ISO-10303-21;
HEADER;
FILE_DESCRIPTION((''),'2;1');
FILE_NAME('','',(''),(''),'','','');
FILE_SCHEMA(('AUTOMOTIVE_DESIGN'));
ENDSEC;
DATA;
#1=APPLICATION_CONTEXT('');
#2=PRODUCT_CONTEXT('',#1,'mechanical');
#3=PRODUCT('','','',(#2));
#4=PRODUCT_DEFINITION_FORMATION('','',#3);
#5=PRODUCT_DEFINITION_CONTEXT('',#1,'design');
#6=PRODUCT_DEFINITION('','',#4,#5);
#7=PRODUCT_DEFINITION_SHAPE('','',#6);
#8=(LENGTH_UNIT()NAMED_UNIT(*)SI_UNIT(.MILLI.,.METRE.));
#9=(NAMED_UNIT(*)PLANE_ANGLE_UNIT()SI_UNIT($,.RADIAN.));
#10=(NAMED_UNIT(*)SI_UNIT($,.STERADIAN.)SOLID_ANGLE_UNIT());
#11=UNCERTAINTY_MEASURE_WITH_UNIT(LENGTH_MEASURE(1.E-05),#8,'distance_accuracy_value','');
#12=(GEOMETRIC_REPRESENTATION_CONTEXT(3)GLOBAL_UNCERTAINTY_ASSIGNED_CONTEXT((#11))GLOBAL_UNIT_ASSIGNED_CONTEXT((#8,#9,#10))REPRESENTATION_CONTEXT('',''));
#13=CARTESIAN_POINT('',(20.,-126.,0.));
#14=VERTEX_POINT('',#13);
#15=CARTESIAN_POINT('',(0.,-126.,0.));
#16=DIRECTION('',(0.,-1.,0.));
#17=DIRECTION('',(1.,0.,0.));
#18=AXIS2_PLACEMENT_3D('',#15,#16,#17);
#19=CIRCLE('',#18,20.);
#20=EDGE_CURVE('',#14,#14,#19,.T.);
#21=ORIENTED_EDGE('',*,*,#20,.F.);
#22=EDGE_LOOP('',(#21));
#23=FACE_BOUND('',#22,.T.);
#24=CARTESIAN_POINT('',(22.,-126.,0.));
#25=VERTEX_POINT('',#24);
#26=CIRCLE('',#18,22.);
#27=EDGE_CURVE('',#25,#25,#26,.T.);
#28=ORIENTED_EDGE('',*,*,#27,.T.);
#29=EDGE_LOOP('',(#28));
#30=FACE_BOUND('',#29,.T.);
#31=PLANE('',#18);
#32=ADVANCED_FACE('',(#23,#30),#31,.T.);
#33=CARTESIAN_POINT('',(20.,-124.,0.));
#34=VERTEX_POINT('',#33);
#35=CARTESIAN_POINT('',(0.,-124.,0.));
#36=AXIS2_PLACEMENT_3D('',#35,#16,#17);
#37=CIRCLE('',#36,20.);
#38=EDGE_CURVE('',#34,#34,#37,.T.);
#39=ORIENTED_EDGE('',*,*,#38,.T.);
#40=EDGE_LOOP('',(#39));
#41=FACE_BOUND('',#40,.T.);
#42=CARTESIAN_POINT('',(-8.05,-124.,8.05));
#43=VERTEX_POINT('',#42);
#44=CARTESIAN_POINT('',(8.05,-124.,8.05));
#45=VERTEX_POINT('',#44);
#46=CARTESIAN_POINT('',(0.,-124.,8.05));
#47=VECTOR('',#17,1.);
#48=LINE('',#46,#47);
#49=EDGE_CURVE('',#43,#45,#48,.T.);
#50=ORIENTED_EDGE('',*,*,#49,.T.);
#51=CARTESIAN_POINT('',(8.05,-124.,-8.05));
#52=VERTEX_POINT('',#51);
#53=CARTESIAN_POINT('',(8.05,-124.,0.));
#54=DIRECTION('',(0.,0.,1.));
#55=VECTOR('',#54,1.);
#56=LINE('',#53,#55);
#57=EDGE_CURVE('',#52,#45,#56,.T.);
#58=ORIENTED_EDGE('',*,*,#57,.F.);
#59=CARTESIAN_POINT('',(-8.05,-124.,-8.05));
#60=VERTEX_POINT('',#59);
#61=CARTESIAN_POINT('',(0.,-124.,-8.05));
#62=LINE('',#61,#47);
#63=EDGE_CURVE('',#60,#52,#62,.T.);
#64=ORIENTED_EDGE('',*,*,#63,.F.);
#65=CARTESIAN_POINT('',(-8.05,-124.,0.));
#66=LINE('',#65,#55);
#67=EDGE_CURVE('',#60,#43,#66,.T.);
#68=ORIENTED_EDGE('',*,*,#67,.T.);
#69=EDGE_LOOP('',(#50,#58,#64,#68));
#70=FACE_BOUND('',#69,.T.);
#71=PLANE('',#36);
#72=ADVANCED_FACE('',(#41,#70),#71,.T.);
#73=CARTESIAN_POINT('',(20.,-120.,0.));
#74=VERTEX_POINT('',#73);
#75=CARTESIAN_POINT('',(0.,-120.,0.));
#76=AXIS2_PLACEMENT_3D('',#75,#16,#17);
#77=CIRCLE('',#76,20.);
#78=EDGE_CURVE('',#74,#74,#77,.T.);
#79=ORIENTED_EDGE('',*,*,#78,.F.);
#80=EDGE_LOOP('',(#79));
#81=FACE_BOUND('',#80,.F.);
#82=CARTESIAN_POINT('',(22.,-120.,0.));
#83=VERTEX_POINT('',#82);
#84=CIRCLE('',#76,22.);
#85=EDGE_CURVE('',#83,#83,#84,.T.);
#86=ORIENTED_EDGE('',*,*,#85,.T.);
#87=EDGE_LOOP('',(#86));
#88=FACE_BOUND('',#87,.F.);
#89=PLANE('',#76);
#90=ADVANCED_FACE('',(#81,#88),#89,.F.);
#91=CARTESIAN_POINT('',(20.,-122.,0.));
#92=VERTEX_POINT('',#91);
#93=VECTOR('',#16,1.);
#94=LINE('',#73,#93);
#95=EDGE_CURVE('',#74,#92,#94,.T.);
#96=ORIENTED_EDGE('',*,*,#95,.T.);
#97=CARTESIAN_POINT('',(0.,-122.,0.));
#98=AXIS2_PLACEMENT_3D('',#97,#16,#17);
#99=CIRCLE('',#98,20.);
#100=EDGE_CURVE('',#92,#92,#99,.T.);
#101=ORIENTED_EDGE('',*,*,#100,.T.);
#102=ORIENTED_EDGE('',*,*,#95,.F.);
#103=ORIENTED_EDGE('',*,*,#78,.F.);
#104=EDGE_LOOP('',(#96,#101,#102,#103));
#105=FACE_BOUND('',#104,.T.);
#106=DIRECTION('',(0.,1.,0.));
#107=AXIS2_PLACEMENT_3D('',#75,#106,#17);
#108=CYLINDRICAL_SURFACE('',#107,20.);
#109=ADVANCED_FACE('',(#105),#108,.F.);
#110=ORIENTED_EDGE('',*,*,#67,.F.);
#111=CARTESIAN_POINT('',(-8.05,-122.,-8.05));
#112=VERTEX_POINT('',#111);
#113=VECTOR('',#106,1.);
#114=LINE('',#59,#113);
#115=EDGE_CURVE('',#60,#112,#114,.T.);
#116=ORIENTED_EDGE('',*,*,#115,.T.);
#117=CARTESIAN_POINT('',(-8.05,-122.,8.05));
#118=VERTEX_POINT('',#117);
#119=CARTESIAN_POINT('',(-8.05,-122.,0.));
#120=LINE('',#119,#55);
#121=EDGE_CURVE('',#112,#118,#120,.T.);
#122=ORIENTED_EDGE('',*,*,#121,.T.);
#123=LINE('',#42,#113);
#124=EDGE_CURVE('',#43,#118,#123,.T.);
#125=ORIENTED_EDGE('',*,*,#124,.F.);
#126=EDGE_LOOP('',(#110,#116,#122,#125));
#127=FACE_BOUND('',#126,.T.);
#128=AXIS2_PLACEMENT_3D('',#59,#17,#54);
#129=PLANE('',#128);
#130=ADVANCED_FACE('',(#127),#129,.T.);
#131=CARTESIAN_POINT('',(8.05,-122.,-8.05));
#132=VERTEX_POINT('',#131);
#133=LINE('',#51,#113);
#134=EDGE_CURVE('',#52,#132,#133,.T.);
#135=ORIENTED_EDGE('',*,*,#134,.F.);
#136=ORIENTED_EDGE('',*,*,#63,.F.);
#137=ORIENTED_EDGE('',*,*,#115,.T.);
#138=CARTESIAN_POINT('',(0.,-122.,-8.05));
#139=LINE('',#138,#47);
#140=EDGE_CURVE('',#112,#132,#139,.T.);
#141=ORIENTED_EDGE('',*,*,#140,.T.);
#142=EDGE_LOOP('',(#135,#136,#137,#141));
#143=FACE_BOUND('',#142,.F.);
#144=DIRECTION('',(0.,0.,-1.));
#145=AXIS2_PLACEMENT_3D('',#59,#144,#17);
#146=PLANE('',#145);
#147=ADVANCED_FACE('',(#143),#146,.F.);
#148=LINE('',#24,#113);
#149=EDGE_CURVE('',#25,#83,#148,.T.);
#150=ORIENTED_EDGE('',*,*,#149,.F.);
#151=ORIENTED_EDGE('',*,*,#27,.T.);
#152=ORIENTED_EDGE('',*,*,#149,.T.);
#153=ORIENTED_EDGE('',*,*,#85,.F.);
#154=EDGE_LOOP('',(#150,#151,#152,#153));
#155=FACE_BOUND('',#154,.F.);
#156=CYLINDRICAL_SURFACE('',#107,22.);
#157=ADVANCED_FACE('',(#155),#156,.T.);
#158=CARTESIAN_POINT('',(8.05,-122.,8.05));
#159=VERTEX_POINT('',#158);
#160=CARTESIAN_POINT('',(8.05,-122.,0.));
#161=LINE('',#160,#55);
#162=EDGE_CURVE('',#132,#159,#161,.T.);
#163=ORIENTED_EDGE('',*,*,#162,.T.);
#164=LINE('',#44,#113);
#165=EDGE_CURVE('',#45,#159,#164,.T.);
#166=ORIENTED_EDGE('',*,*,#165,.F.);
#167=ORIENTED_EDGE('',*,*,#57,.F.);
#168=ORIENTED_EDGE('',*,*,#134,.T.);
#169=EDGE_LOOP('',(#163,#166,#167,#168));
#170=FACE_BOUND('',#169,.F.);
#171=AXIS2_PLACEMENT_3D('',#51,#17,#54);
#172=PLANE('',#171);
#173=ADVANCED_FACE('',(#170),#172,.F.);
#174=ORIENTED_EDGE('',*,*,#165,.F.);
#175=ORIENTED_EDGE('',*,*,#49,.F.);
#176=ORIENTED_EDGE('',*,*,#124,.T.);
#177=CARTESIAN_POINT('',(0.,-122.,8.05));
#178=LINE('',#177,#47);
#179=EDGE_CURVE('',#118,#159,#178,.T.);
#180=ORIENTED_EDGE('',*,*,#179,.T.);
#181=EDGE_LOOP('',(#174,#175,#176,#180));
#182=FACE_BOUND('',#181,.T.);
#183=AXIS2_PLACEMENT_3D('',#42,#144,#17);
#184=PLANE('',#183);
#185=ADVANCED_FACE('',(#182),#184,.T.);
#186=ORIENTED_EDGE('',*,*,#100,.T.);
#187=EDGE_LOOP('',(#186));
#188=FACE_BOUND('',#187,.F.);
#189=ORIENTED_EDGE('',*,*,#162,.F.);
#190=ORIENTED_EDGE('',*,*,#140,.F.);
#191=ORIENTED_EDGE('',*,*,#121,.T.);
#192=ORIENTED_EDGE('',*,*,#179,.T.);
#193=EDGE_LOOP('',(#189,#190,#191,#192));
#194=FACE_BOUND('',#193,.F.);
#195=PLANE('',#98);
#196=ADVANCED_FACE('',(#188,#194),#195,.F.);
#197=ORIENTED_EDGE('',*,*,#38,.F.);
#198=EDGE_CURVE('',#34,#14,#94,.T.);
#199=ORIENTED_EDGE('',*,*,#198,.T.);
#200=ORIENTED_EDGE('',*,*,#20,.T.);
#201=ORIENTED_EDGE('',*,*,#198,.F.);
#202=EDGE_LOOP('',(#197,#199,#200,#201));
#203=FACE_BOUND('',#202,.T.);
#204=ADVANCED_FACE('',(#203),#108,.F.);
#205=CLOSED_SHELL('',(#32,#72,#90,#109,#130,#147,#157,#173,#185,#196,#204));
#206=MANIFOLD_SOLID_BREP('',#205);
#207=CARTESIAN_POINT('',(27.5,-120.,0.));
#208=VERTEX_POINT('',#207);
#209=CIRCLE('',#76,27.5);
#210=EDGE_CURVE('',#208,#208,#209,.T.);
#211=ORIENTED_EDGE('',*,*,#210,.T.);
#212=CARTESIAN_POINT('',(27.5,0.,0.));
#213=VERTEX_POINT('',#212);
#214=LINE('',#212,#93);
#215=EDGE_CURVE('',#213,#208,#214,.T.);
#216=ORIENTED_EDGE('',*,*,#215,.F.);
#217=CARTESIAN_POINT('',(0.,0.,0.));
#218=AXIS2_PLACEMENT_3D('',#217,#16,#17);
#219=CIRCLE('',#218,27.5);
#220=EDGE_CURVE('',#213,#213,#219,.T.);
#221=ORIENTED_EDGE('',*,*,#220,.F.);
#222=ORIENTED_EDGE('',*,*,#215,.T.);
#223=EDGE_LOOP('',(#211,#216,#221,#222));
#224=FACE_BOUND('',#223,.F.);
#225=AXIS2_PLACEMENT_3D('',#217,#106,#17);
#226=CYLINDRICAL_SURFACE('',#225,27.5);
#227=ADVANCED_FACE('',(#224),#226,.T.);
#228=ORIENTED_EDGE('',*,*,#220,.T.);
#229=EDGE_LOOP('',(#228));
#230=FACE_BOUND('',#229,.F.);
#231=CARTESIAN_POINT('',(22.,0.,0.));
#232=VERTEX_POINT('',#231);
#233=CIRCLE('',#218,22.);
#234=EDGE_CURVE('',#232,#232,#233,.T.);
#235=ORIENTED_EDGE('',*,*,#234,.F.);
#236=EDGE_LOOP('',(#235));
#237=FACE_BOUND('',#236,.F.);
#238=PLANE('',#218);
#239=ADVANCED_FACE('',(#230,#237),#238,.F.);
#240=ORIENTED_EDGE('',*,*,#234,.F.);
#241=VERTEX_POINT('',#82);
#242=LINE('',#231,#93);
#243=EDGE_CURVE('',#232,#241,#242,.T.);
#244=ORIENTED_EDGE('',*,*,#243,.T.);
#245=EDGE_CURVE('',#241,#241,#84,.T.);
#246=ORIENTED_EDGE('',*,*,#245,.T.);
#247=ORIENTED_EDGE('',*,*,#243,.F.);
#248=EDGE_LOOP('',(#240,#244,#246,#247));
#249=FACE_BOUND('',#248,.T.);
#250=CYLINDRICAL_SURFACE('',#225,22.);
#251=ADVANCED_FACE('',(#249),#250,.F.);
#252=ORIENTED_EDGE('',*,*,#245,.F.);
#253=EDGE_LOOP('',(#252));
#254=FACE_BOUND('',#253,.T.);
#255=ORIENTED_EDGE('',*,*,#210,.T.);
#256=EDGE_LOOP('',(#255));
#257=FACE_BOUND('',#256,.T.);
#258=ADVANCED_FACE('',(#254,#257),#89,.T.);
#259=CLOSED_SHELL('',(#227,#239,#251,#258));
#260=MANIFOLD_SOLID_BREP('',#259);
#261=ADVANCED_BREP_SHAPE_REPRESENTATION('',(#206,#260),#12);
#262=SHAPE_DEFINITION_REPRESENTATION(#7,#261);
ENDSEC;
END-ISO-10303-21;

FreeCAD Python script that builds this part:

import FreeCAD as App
import Part
import Sketcher

V = App.Vector

doc = App.newDocument("Part")
params = doc.addObject("Spreadsheet::Sheet", "Params")
for row, (alias, value) in enumerate([
    ("sketch1_diameter", "55 mm"),
    ("sketch1_diameter2", "44 mm"),
    ("pad1_length", "120 mm"),
    ("sketch2_diameter", "44 mm"),
    ("sketch2_diameter2", "40 mm"),
    ("pad2_length", "6 mm"),
    ("sketch3_diameter", "44 mm"),
    ("sketch3_diameter2", "40 mm"),
    ("pad3_length", "2 mm"),
    ("sketch4_diameter", "40 mm"),
    ("sketch4_width", "16.1 mm"),
    ("pad4_length", "2 mm"),
], start=1):
    params.set(f"A{row}", alias)
    params.set(f"B{row}", "=" + value)
    params.setAlias(f"B{row}", alias)

body = doc.addObject("PartDesign::Body", "Body")

# Sketch on XZ plane
sketch1 = body.newObject("Sketcher::SketchObject", "Sketch")
sketch1.AttachmentSupport = (doc.getObject("XZ_Plane"), [""])
sketch1.MapMode = "FlatFace"
sketch1.addGeometry(Part.Circle(V(0, 0, 0), V(0, 0, 1), 28), False)
sketch1.addGeometry(Part.Circle(V(0, 0, 0), V(0, 0, 1), 22), False)
sketch1.addConstraint(Sketcher.Constraint("Coincident", 0, 3, -1, 1))
sketch1.addConstraint(Sketcher.Constraint("Coincident", 1, 3, -1, 1))
sketch1.addConstraint(Sketcher.Constraint("Diameter", 0, 55.0))
sketch1.addConstraint(Sketcher.Constraint("Diameter", 1, 44.0))
sketch1.setExpression("Constraints[2]", "Params.sketch1_diameter")
sketch1.setExpression("Constraints[3]", "Params.sketch1_diameter2")
pad1 = body.newObject("PartDesign::Pad", "Pad")
pad1.Profile = sketch1
pad1.setExpression("Length", "Params.pad1_length")
body2 = doc.addObject("PartDesign::Body", "Body001")

# Sketch on XZ plane
sketch2 = body2.newObject("Sketcher::SketchObject", "Sketch001")
sketch2.AttachmentSupport = (doc.getObject("XZ_Plane001"), [""])
sketch2.MapMode = "FlatFace"
sketch2.AttachmentOffset = App.Placement(V(0, 0, 120), App.Rotation())
sketch2.addGeometry(Part.Circle(V(0, 0, 0), V(0, 0, 1), 22), False)
sketch2.addGeometry(Part.Circle(V(0, 0, 0), V(0, 0, 1), 20), False)
sketch2.addConstraint(Sketcher.Constraint("Coincident", 0, 3, -1, 1))
sketch2.addConstraint(Sketcher.Constraint("Coincident", 1, 3, -1, 1))
sketch2.addConstraint(Sketcher.Constraint("Diameter", 0, 44.0))
sketch2.addConstraint(Sketcher.Constraint("Diameter", 1, 40.0))
sketch2.setExpression("Constraints[2]", "Params.sketch2_diameter")
sketch2.setExpression("Constraints[3]", "Params.sketch2_diameter2")
pad2 = body2.newObject("PartDesign::Pad", "Pad001")
pad2.Profile = sketch2
pad2.setExpression("Length", "Params.pad2_length")
body.AllowCompound = True
doc.recompute()

boolean = body.newObject("PartDesign::Boolean", "Boolean")
boolean.Type = "Fuse"
boolean.addObjects([body2])

# Sketch on XZ plane
sketch3 = body.newObject("Sketcher::SketchObject", "Sketch002")
sketch3.AttachmentSupport = (doc.getObject("XZ_Plane"), [""])
sketch3.MapMode = "FlatFace"
sketch3.AttachmentOffset = App.Placement(V(0, 0, 120), App.Rotation())
sketch3.addGeometry(Part.Circle(V(0, 0, 0), V(0, 0, 1), 22), False)
sketch3.addGeometry(Part.Circle(V(0, 0, 0), V(0, 0, 1), 20), False)
sketch3.addConstraint(Sketcher.Constraint("Coincident", 0, 3, -1, 1))
sketch3.addConstraint(Sketcher.Constraint("Coincident", 1, 3, -1, 1))
sketch3.addConstraint(Sketcher.Constraint("Diameter", 0, 44.0))
sketch3.addConstraint(Sketcher.Constraint("Diameter", 1, 40.0))
sketch3.setExpression("Constraints[2]", "Params.sketch3_diameter")
sketch3.setExpression("Constraints[3]", "Params.sketch3_diameter2")
pad3 = body.newObject("PartDesign::Pad", "Pad002")
pad3.Profile = sketch3
pad3.setExpression("Length", "Params.pad3_length")

# Sketch on XZ plane
sketch4 = body.newObject("Sketcher::SketchObject", "Sketch003")
sketch4.AttachmentSupport = (doc.getObject("XZ_Plane"), [""])
sketch4.MapMode = "FlatFace"
sketch4.AttachmentOffset = App.Placement(V(0, 0, 124), App.Rotation())
sketch4.addGeometry(Part.Circle(V(0, 0, 0), V(0, 0, 1), 20), False)
sketch4.addGeometry(Part.LineSegment(V(8, -8, 0), V(-8, -8, 0)), False)
sketch4.addGeometry(Part.LineSegment(V(-8, -8, 0), V(-8, 8, 0)), False)
sketch4.addGeometry(Part.LineSegment(V(-8, 8, 0), V(8, 8, 0)), False)
sketch4.addGeometry(Part.LineSegment(V(8, 8, 0), V(8, -8, 0)), False)
sketch4.addConstraint(Sketcher.Constraint("Coincident", 1, 2, 2, 1))
sketch4.addConstraint(Sketcher.Constraint("Coincident", 2, 2, 3, 1))
sketch4.addConstraint(Sketcher.Constraint("Coincident", 3, 2, 4, 1))
sketch4.addConstraint(Sketcher.Constraint("Coincident", 4, 2, 1, 1))
sketch4.addConstraint(Sketcher.Constraint("Horizontal", 1))
sketch4.addConstraint(Sketcher.Constraint("Vertical", 2))
sketch4.addConstraint(Sketcher.Constraint("Horizontal", 3))
sketch4.addConstraint(Sketcher.Constraint("Vertical", 4))
sketch4.addConstraint(Sketcher.Constraint("Coincident", 0, 3, -1, 1))
sketch4.addConstraint(Sketcher.Constraint("Symmetric", 1, 2, 3, 2, -1, 1))
sketch4.addConstraint(Sketcher.Constraint("Equal", 3, 2))
sketch4.addConstraint(Sketcher.Constraint("Diameter", 0, 40.0))
sketch4.addConstraint(Sketcher.Constraint("DistanceX", 1, 2, 1, 1, 16.1))
sketch4.setExpression("Constraints[11]", "Params.sketch4_diameter")
sketch4.setExpression("Constraints[12]", "Params.sketch4_width")
pad4 = body.newObject("PartDesign::Pad", "Pad003")
pad4.Profile = sketch4
pad4.setExpression("Length", "Params.pad4_length")
pad4.Reversed = True

doc.recompute()
